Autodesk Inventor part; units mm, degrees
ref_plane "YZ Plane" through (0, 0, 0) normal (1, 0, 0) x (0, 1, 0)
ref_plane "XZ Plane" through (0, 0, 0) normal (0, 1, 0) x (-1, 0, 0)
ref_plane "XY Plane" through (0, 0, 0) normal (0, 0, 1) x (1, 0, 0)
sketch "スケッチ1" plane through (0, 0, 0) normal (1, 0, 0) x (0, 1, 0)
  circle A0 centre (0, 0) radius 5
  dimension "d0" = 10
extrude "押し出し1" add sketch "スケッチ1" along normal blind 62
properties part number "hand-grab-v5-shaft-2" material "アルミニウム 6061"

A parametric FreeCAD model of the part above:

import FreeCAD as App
import Part
import Sketcher

V = App.Vector
Q = App.Units.Quantity

doc = App.newDocument("Part")
body = doc.addObject("PartDesign::Body", "Body")

# Sketch on YZ plane
sketch1 = doc.addObject("Sketcher::SketchObject", "Sketch")
body.addObject(sketch1)
sketch1.AttachmentSupport = (doc.YZ_Plane, [""])
sketch1.MapMode = "FlatFace"
sketch1.addGeometry(Part.Circle(V(0, 0, 0), V(0, 0, 1), 5), False)
sketch1.addConstraint([
    Sketcher.Constraint("Coincident", 0, 3, -1, 1),
    Sketcher.Constraint("Diameter", 0, Q("10 mm")),
])
pad1 = doc.addObject("PartDesign::Pad", "Pad")
body.addObject(pad1)
pad1.Profile = sketch1
pad1.Length = 62

doc.recompute()
